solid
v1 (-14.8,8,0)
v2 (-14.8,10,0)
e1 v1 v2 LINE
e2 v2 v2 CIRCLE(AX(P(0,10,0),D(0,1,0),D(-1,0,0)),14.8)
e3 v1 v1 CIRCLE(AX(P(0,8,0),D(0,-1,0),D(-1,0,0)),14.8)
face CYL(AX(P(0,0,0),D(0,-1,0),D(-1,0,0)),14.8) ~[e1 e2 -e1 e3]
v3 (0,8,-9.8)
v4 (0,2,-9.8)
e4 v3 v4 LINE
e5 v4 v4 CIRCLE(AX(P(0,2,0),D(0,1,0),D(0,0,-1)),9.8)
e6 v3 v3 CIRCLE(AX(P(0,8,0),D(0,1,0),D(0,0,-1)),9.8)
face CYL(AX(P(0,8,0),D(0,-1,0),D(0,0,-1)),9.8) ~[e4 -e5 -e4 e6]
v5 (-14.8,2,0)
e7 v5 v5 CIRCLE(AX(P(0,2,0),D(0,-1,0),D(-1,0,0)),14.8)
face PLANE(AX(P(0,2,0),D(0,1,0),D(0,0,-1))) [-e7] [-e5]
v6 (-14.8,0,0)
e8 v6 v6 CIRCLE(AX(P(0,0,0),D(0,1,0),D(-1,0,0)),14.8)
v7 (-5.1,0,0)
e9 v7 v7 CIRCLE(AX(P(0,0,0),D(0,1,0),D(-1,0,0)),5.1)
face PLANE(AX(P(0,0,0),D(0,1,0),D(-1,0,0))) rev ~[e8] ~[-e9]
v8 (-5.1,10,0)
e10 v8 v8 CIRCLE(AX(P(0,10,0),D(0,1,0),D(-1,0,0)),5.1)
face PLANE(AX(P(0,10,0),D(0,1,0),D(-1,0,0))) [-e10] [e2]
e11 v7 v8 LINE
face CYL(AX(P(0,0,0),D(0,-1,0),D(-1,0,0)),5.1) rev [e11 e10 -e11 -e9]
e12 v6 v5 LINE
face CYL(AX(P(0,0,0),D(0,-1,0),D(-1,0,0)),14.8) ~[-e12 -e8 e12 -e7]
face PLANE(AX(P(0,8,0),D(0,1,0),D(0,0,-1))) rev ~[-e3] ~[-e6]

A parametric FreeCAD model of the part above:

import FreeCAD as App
import Part
import Sketcher
Q = App.Units.Quantity

doc = App.newDocument("Part")
body = doc.addObject("PartDesign::Body", "Body")

# Sketch on XZ plane
sketch1 = body.newObject("Sketcher::SketchObject", "Sketch")
sketch1.AttachmentSupport = (doc.getObject("XZ_Plane"), [""])
sketch1.MapMode = "FlatFace"
sketch1.addGeometry(Part.Circle(App.Vector(0, 0, 0), App.Vector(0, 0, 1), 15), False)
sketch1.addGeometry(Part.Circle(App.Vector(0, 0, 0), App.Vector(0, 0, 1), 5), False)
sketch1.addConstraint(Sketcher.Constraint("Coincident", 0, 3, -1, 1))
sketch1.addConstraint(Sketcher.Constraint("Coincident", 1, 3, -1, 1))
sketch1.addConstraint(Sketcher.Constraint("Diameter", 0, Q("29.6 mm")))
sketch1.addConstraint(Sketcher.Constraint("Diameter", 1, Q("10.2 mm")))
pad1 = body.newObject("PartDesign::Pad", "Pad")
pad1.Profile = sketch1
pad1.Length = 10
pad1.Reversed = True

# Sketch on YZ plane
sketch2 = body.newObject("Sketcher::SketchObject", "Sketch001")
sketch2.AttachmentSupport = (doc.getObject("YZ_Plane"), [""])
sketch2.MapMode = "FlatFace"
sketch2.addGeometry(Part.LineSegment(App.Vector(2, -15, 0), App.Vector(8, -15, 0)), False)
sketch2.addGeometry(Part.LineSegment(App.Vector(8, -15, 0), App.Vector(8, -10, 0)), False)
sketch2.addGeometry(Part.LineSegment(App.Vector(8, -10, 0), App.Vector(2, -10, 0)), False)
sketch2.addGeometry(Part.LineSegment(App.Vector(2, -10, 0), App.Vector(2, -15, 0)), False)
sketch2.addConstraint(Sketcher.Constraint("Coincident", 0, 2, 1, 1))
sketch2.addConstraint(Sketcher.Constraint("Coincident", 1, 2, 2, 1))
sketch2.addConstraint(Sketcher.Constraint("Coincident", 2, 2, 3, 1))
sketch2.addConstraint(Sketcher.Constraint("Coincident", 3, 2, 0, 1))
sketch2.addConstraint(Sketcher.Constraint("Horizontal", 0))
sketch2.addConstraint(Sketcher.Constraint("Vertical", 1))
sketch2.addConstraint(Sketcher.Constraint("Horizontal", 2))
sketch2.addConstraint(Sketcher.Constraint("Vertical", 3))
sketch2.addConstraint(Sketcher.Constraint("DistanceY", 1, 1, 1, 2, Q("5 mm")))
sketch2.addConstraint(Sketcher.Constraint("DistanceX", -1, 1, 2, 2, Q("2 mm")))
sketch2.addConstraint(Sketcher.Constraint("DistanceX", 0, 1, 0, 2, Q("6 mm")))
sketch2.addConstraint(Sketcher.Constraint("DistanceY", 0, 2, -1, 1, Q("14.8 mm")))
groove = body.newObject("PartDesign::Groove", "Groove")
groove.Profile = sketch2
groove.ReferenceAxis = (sketch2, ["H_Axis"])
groove.Angle = 360

doc.recompute()
